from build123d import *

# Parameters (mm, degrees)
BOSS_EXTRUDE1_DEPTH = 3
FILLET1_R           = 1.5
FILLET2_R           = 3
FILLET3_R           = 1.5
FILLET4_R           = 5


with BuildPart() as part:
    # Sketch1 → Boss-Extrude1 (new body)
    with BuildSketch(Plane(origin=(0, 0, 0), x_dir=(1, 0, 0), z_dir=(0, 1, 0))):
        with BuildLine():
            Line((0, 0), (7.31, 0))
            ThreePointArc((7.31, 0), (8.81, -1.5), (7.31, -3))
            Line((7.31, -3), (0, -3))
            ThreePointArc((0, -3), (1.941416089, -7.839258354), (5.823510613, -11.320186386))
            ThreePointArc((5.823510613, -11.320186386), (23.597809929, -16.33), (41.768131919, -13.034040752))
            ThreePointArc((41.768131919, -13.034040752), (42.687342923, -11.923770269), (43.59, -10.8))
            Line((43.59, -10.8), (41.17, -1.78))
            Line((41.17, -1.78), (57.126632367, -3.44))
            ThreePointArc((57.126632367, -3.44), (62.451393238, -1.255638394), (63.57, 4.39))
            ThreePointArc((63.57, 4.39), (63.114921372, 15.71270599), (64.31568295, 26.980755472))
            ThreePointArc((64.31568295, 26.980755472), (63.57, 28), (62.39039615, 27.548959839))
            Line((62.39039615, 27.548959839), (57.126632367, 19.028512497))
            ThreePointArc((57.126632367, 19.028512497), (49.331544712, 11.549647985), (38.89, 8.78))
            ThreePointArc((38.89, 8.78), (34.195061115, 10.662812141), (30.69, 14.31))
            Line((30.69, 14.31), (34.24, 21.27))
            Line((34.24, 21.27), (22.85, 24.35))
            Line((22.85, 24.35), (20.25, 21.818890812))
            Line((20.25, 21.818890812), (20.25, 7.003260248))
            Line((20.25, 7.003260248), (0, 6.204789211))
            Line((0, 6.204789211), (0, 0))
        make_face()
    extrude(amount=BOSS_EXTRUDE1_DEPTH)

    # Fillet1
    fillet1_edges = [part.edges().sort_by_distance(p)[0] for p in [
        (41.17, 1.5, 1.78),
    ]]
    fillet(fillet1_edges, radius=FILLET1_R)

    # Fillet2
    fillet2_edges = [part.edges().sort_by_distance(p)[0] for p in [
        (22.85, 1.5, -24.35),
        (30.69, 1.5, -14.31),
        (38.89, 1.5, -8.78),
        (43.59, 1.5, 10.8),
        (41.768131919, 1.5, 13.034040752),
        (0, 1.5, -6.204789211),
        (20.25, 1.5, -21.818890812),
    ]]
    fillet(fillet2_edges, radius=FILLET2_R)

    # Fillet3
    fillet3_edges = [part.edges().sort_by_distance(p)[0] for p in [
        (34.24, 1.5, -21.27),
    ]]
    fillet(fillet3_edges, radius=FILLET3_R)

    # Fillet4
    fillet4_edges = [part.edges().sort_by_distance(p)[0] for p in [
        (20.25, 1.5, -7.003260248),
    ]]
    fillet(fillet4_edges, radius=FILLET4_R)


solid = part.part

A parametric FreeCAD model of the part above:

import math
import FreeCAD as App
import Part
import Sketcher
from FreeCAD import Vector


def edges_at(feature, points):
    """Names of the edges that pass closest to the given points."""
    edges = feature.Shape.Edges
    near = lambda p: min(range(len(edges)), key=lambda i: edges[i].distToShape(Part.Vertex(*p))[0])
    return sorted({f"Edge{near(p) + 1}" for p in points})

doc = App.newDocument("Part")
body = doc.addObject("PartDesign::Body", "Body")

sketch1 = body.newObject("Sketcher::SketchObject", "Sketch")
sketch1.AttachmentSupport = (doc.getObject("XZ_Plane"), [""])
sketch1.MapMode = "FlatFace"
sketch1.addGeometry([
    Part.LineSegment(Vector(0, 0, 0), Vector(7.31, 0, 0)),
    Part.ArcOfCircle(Part.Circle(Vector(7.31, 1.5, 0), Vector(0, 0, 1), 1.5), math.radians(-90), math.radians(90)),
    Part.LineSegment(Vector(7.31, 3, 0), Vector(0, 3, 0)),
    Part.ArcOfCircle(Part.Circle(Vector(11.344279, 1.257955, 0), Vector(0, 0, 1), 11.477255), math.radians(118.751922), math.radians(171.269767)),
    Part.ArcOfCircle(Part.Circle(Vector(25.551063, -24.635533, 0), Vector(0, 0, 1), 41.012073), math.radians(66.707716), math.radians(118.751922)),
    Part.ArcOfCircle(Part.Circle(Vector(-32.690724, -49.547308, 0), Vector(0, 0, 1), 97.26534), math.radians(38.348273), math.radians(40.046456)),
    Part.LineSegment(Vector(43.59, 10.8, 0), Vector(41.17, 1.78, 0)),
    Part.LineSegment(Vector(41.17, 1.78, 0), Vector(57.126632, 3.44, 0)),
    Part.ArcOfCircle(Part.Circle(Vector(57.755855, -2.608357, 0), Vector(0, 0, 1), 6.080998), math.radians(-17.036771), math.radians(95.939229)),
    Part.ArcOfCircle(Part.Circle(Vector(140.580736, -13.155689, 0), Vector(0, 0, 1), 77.508004), math.radians(173.506299), math.radians(190.274804)),
    Part.ArcOfCircle(Part.Circle(Vector(63.275509, -27.002155, 0), Vector(0, 0, 1), 1.040394), math.radians(-148.293048), math.radians(1.178568)),
    Part.LineSegment(Vector(62.390396, -27.54896, 0), Vector(57.126632, -19.028512, 0)),
    Part.ArcOfCircle(Part.Circle(Vector(38.747985, -30.382477, 0), Vector(0, 0, 1), 21.602944), math.radians(31.706952), math.radians(89.623343)),
    Part.ArcOfCircle(Part.Circle(Vector(40.917749, -20.631355, 0), Vector(0, 0, 1), 12.023576), math.radians(99.709207), math.radians(148.281478)),
    Part.LineSegment(Vector(30.69, -14.31, 0), Vector(34.24, -21.27, 0)),
    Part.LineSegment(Vector(34.24, -21.27, 0), Vector(22.85, -24.35, 0)),
    Part.LineSegment(Vector(22.85, -24.35, 0), Vector(20.25, -21.818891, 0)),
    Part.LineSegment(Vector(20.25, -21.818891, 0), Vector(20.25, -7.00326, 0)),
    Part.LineSegment(Vector(20.25, -7.00326, 0), Vector(0, -6.204789, 0)),
    Part.LineSegment(Vector(0, -6.204789, 0), Vector(0, 0, 0)),
], False)
sketch1.addConstraint([
    Sketcher.Constraint("Tangent", 0, 2, 1, 1),
    Sketcher.Constraint("Tangent", 1, 2, 2, 1),
    Sketcher.Constraint("Coincident", 2, 2, 3, 2),
    Sketcher.Constraint("Tangent", 3, 1, 4, 2),
    Sketcher.Constraint("Coincident", 4, 1, 5, 2),
    Sketcher.Constraint("Coincident", 5, 1, 6, 1),
    Sketcher.Constraint("Coincident", 6, 2, 7, 1),
    Sketcher.Constraint("Tangent", 7, 2, 8, 2),
    Sketcher.Constraint("Coincident", 8, 1, 9, 1),
    Sketcher.Constraint("Coincident", 9, 2, 10, 2),
    Sketcher.Constraint("Tangent", 10, 1, 11, 1),
    Sketcher.Constraint("Tangent", 11, 2, 12, 1),
    Sketcher.Constraint("Coincident", 12, 2, 13, 1),
    Sketcher.Constraint("Coincident", 13, 2, 14, 1),
    Sketcher.Constraint("Coincident", 14, 2, 15, 1),
    Sketcher.Constraint("Coincident", 15, 2, 16, 1),
    Sketcher.Constraint("Coincident", 16, 2, 17, 1),
    Sketcher.Constraint("Coincident", 17, 2, 18, 1),
    Sketcher.Constraint("Coincident", 18, 2, 19, 1),
    Sketcher.Constraint("Coincident", 19, 2, 0, 1),
    Sketcher.Constraint("Horizontal", 0),
    Sketcher.Constraint("Horizontal", 2),
    Sketcher.Constraint("Vertical", 17),
    Sketcher.Constraint("Vertical", 19),
    Sketcher.Constraint("Coincident", 19, 2, -1, 1),
    Sketcher.Constraint("PointOnObject", 2, 2, -2),
    Sketcher.Constraint("Vertical", 7, 2, 11, 2),
    Sketcher.Constraint("Radius", 1, 1.5),
    Sketcher.Constraint("Radius", 8, 6.080998),
    Sketcher.Constraint("DistanceX", 0, 1, 0, 2, 7.31),
    Sketcher.Constraint("DistanceY", -1, 1, 5, 1, 10.8),
    Sketcher.Constraint("DistanceX", 6, 2, 8, 1, 22.4),
    Sketcher.Constraint("DistanceX", 12, 2, 5, 1, 4.7),
    Sketcher.Constraint("DistanceX", 13, 2, 12, 2, 8.2),
    Sketcher.Constraint("DistanceX", 16, 2, 15, 2, 2.6),
    Sketcher.Constraint("DistanceX", -1, 1, 5, 1, 43.59),
    Sketcher.Constraint("DistanceX", -1, 1, 6, 2, 41.17),
    Sketcher.Constraint("DistanceY", -1, 1, 6, 2, 1.78),
    Sketcher.Constraint("DistanceY", -1, 1, 7, 2, 3.44),
    Sketcher.Constraint("DistanceY", 8, 1, -1, 1, 4.39),
    Sketcher.Constraint("DistanceY", 12, 2, -1, 1, 8.78),
    Sketcher.Constraint("DistanceY", 13, 2, -1, 1, 14.31),
    Sketcher.Constraint("DistanceX", -1, 1, 14, 2, 34.24),
    Sketcher.Constraint("DistanceY", 14, 2, -1, 1, 21.27),
    Sketcher.Constraint("DistanceX", -1, 1, 15, 2, 22.85),
    Sketcher.Constraint("DistanceY", 15, 2, -1, 1, 24.35),
    Sketcher.Constraint("Radius", 5, 97.26534),
    Sketcher.Constraint("Radius", 3, 11.477255),
    Sketcher.Constraint("Radius", 4, 41.012073),
    Sketcher.Constraint("Radius", 9, 77.508004),
    Sketcher.Constraint("Radius", 10, 1.040394),
    Sketcher.Constraint("Radius", 12, 21.602944),
    Sketcher.Constraint("Radius", 13, 12.023576),
    Sketcher.Constraint("DistanceY", 17, 1, 17, 2, 14.815631),
    Sketcher.Constraint("DistanceY", 19, 1, 19, 2, 6.204789),
    Sketcher.Constraint("DistanceY", 10, 3, 8, 3, 24.393798),
    Sketcher.Constraint("DistanceX", 4, 1, 7, 2, 15.3585),
    Sketcher.Constraint("DistanceY", 10, 3, 9, 2, 0.021399),
    Sketcher.Constraint("Distance", 11, 10.01525),
    Sketcher.Constraint("Distance", 16, 3.628569),
    Sketcher.Constraint("DistanceX", -1, 1, 3, 3, 11.344279),
    Sketcher.Constraint("DistanceY", -1, 1, 4, 1, 13.034041),
])
pad1 = body.newObject("PartDesign::Pad", "Pad")
pad1.Profile = sketch1
pad1.Length = 3
pad1.Reversed = True
doc.recompute()

fillet = body.newObject("PartDesign::Fillet", "Fillet")
fillet.Base = (pad1, edges_at(pad1, [(41.17, 1.5, 1.78)]))
fillet.Radius = 1.5
doc.recompute()

fillet2 = body.newObject("PartDesign::Fillet", "Fillet001")
fillet2.Base = (fillet, edges_at(fillet, [
    (22.85, 1.5, -24.35),
    (30.69, 1.5, -14.31),
    (38.89, 1.5, -8.78),
    (43.59, 1.5, 10.8),
    (41.768, 1.5, 13.034),
    (0, 1.5, -6.205),
    (20.25, 1.5, -21.819),
]))
fillet2.Radius = 3
doc.recompute()

fillet3 = body.newObject("PartDesign::Fillet", "Fillet002")
fillet3.Base = (fillet2, edges_at(fillet2, [(34.24, 1.5, -21.27)]))
fillet3.Radius = 1.5
doc.recompute()

fillet4 = body.newObject("PartDesign::Fillet", "Fillet003")
fillet4.Base = (fillet3, edges_at(fillet3, [(20.25, 1.5, -7.003)]))
fillet4.Radius = 5

doc.recompute()
